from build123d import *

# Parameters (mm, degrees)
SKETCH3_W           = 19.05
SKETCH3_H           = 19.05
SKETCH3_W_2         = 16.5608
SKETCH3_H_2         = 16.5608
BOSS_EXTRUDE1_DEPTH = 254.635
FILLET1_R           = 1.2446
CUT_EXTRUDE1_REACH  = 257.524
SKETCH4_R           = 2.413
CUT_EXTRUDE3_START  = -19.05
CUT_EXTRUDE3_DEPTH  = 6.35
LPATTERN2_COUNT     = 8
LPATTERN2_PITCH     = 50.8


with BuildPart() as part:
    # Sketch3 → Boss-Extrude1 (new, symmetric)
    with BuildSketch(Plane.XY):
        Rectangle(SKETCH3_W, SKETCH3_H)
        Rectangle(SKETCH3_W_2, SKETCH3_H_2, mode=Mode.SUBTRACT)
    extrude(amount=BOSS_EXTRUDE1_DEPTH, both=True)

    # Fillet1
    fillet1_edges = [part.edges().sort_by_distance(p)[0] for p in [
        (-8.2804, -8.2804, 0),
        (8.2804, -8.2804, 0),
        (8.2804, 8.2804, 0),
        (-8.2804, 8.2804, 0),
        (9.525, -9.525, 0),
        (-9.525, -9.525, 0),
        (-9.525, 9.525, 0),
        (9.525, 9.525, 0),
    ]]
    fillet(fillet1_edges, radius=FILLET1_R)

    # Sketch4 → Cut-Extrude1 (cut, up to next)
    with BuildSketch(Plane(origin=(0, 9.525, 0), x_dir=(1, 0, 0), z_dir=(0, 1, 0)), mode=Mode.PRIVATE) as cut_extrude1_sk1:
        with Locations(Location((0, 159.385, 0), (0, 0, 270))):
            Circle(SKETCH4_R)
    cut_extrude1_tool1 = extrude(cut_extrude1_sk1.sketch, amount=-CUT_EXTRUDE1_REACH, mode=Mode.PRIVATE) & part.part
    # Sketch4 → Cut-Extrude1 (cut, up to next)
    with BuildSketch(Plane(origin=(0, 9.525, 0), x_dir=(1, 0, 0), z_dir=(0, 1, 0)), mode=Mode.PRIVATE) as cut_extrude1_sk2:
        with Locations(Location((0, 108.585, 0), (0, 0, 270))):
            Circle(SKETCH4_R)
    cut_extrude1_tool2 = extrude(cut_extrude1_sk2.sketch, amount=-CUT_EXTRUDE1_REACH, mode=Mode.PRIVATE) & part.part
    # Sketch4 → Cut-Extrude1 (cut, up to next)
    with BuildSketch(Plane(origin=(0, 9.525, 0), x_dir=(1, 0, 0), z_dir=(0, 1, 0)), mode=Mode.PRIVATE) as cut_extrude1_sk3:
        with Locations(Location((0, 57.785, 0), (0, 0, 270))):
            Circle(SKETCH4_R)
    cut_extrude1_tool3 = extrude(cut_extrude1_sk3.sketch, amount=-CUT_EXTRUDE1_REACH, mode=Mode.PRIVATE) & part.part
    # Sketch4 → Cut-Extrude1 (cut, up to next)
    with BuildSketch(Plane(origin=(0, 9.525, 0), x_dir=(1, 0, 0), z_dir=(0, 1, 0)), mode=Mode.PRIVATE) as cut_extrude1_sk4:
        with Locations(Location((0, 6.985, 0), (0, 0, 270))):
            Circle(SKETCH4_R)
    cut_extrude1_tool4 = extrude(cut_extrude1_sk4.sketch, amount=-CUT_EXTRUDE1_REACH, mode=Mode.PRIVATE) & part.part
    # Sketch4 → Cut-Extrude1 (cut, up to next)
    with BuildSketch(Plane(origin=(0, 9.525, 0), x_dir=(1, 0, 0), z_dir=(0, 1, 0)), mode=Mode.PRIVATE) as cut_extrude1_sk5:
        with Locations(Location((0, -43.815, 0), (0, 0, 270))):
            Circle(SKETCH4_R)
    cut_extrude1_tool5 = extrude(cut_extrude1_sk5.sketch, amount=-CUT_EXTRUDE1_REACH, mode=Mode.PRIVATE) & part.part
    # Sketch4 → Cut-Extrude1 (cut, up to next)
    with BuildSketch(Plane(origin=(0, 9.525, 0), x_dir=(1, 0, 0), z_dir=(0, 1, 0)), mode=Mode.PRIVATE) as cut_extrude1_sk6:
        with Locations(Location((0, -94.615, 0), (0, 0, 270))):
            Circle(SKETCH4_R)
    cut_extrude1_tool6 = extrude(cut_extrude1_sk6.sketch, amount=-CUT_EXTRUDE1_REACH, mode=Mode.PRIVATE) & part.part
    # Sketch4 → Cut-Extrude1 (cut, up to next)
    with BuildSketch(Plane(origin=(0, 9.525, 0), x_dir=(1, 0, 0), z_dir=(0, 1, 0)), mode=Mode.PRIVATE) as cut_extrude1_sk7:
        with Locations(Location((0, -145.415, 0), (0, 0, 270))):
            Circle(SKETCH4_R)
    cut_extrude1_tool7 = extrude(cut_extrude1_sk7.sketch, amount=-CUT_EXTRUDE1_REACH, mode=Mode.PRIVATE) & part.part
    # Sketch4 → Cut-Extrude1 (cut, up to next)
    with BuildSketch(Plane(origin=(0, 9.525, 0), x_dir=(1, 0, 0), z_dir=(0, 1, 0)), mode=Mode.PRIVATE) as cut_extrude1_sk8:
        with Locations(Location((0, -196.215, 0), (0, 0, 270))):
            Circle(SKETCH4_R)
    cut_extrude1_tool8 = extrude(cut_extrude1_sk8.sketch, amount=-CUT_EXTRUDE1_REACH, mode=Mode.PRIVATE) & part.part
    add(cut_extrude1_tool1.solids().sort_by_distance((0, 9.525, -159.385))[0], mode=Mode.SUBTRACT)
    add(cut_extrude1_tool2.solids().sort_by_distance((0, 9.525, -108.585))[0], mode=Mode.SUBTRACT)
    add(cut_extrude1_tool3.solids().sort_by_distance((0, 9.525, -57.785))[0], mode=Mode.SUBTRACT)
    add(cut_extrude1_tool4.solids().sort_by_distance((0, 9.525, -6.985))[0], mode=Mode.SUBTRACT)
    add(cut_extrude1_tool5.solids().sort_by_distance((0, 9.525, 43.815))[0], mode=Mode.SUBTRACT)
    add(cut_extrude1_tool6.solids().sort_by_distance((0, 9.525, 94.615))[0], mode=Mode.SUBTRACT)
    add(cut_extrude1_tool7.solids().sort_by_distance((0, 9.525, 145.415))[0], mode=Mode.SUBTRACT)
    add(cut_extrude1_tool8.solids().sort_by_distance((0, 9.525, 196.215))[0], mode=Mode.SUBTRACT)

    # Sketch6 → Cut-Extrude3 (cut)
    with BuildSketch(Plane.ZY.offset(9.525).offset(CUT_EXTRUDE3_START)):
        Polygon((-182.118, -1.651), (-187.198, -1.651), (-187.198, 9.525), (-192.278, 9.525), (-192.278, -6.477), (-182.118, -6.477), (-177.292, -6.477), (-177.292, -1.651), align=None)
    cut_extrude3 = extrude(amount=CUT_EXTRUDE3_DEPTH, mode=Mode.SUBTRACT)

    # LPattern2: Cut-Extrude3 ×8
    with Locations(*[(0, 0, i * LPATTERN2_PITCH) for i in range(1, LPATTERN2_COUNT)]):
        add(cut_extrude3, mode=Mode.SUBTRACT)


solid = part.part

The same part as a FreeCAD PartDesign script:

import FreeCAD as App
import Part
import Sketcher
Q = App.Units.Quantity


def edges_at(feature, points):
    """Names of the edges that pass closest to the given points."""
    edges = feature.Shape.Edges
    near = lambda p: min(range(len(edges)), key=lambda i: edges[i].distToShape(Part.Vertex(*p))[0])
    return sorted({f"Edge{near(p) + 1}" for p in points})


def add_polygon(sketch, points):
    """Adds a closed chain of lines whose ends are joined by coincident constraints."""
    first, n = sketch.GeometryCount, len(points)
    for a, b in zip(points, points[1:] + points[:1]):
        sketch.addGeometry(Part.LineSegment(App.Vector(*a, 0), App.Vector(*b, 0)), False)
    for i in range(n):
        sketch.addConstraint(Sketcher.Constraint("Coincident", first + i, 2, first + (i + 1) % n, 1))

doc = App.newDocument("Part")
body = doc.addObject("PartDesign::Body", "Body")

# Sketch on XY plane
sketch1 = body.newObject("Sketcher::SketchObject", "Sketch")
sketch1.AttachmentSupport = (doc.getObject("XY_Plane"), [""])
sketch1.MapMode = "FlatFace"
add_polygon(sketch1, [(-9.525, 9.525), (-9.525, -9.525), (9.525, -9.525), (9.525, 9.525)])  # lines 0-3
add_polygon(sketch1, [(8.2804, -8.2804), (-8.2804, -8.2804), (-8.2804, 8.2804), (8.2804, 8.2804)])  # lines 4-7
sketch1.addConstraint(Sketcher.Constraint("Vertical", 0))
sketch1.addConstraint(Sketcher.Constraint("Horizontal", 1))
sketch1.addConstraint(Sketcher.Constraint("Vertical", 2))
sketch1.addConstraint(Sketcher.Constraint("Horizontal", 3))
sketch1.addConstraint(Sketcher.Constraint("Horizontal", 4))
sketch1.addConstraint(Sketcher.Constraint("Vertical", 5))
sketch1.addConstraint(Sketcher.Constraint("Horizontal", 6))
sketch1.addConstraint(Sketcher.Constraint("Vertical", 7))
sketch1.addConstraint(Sketcher.Constraint("Symmetric", 0, 2, 2, 2, -1, 1))
sketch1.addConstraint(Sketcher.Constraint("Symmetric", 4, 2, 6, 2, -1, 1))
sketch1.addConstraint(Sketcher.Constraint("Equal", 3, 0))
sketch1.addConstraint(Sketcher.Constraint("Equal", 6, 5))
sketch1.addConstraint(Sketcher.Constraint("DistanceX", 1, 1, 1, 2, Q("0.75 in")))
sketch1.addConstraint(Sketcher.Constraint("DistanceX", 4, 2, 4, 1, Q("0.652 in")))
pad1 = body.newObject("PartDesign::Pad", "Pad")
pad1.Profile = sketch1
pad1.Length = Q("20.05 in")
pad1.Midplane = True
doc.recompute()

fillet = body.newObject("PartDesign::Fillet", "Fillet")
fillet.Base = (pad1, edges_at(pad1, [
    (-8.28, -8.28, 0),
    (8.28, -8.28, 0),
    (8.28, 8.28, 0),
    (-8.28, 8.28, 0),
    (9.525, -9.525, 0),
    (-9.525, -9.525, 0),
    (-9.525, 9.525, 0),
    (9.525, 9.525, 0),
]))
fillet.Radius = Q("0.049 in")

# Sketch on XZ plane
sketch2 = body.newObject("Sketcher::SketchObject", "Sketch001")
sketch2.AttachmentSupport = (doc.getObject("XZ_Plane"), [""])
sketch2.MapMode = "FlatFace"
sketch2.AttachmentOffset = App.Placement(App.Vector(0, 0, -0.375 * 25.4), App.Rotation())
sketch2.addGeometry(Part.Circle(App.Vector(0, -159.385, 0), App.Vector(0, 0, 1), 2.413), False)
sketch2.addConstraint(Sketcher.Constraint("PointOnObject", 0, 3, -2))
sketch2.addConstraint(Sketcher.Constraint("Diameter", 0, Q("0.19 in")))
sketch2.addConstraint(Sketcher.Constraint("DistanceY", 0, 3, -1, 1, Q("6.275 in")))
pocket1 = body.newObject("PartDesign::Pocket", "Pocket")
pocket1.Profile = sketch2
pocket1.Type = "UpToFirst"
pocket1.Reversed = True

# Sketch on XZ plane
sketch3 = body.newObject("Sketcher::SketchObject", "Sketch002")
sketch3.AttachmentSupport = (doc.getObject("XZ_Plane"), [""])
sketch3.MapMode = "FlatFace"
sketch3.AttachmentOffset = App.Placement(App.Vector(0, 0, -0.375 * 25.4), App.Rotation())
sketch3.addGeometry(Part.Circle(App.Vector(0, -108.585, 0), App.Vector(0, 0, 1), 2.413), False)
sketch3.addConstraint(Sketcher.Constraint("PointOnObject", 0, 3, -2))
sketch3.addConstraint(Sketcher.Constraint("Diameter", 0, Q("0.19 in")))
sketch3.addConstraint(Sketcher.Constraint("DistanceY", 0, 3, -1, 1, Q("4.275 in")))
pocket2 = body.newObject("PartDesign::Pocket", "Pocket001")
pocket2.Profile = sketch3
pocket2.Type = "UpToFirst"
pocket2.Reversed = True

# Sketch on XZ plane
sketch4 = body.newObject("Sketcher::SketchObject", "Sketch003")
sketch4.AttachmentSupport = (doc.getObject("XZ_Plane"), [""])
sketch4.MapMode = "FlatFace"
sketch4.AttachmentOffset = App.Placement(App.Vector(0, 0, -0.375 * 25.4), App.Rotation())
sketch4.addGeometry(Part.Circle(App.Vector(0, -57.785, 0), App.Vector(0, 0, 1), 2.413), False)
sketch4.addConstraint(Sketcher.Constraint("PointOnObject", 0, 3, -2))
sketch4.addConstraint(Sketcher.Constraint("Diameter", 0, Q("0.19 in")))
sketch4.addConstraint(Sketcher.Constraint("DistanceY", 0, 3, -1, 1, Q("2.275 in")))
pocket3 = body.newObject("PartDesign::Pocket", "Pocket002")
pocket3.Profile = sketch4
pocket3.Type = "UpToFirst"
pocket3.Reversed = True

# Sketch on XZ plane
sketch5 = body.newObject("Sketcher::SketchObject", "Sketch004")
sketch5.AttachmentSupport = (doc.getObject("XZ_Plane"), [""])
sketch5.MapMode = "FlatFace"
sketch5.AttachmentOffset = App.Placement(App.Vector(0, 0, -0.375 * 25.4), App.Rotation())
sketch5.addGeometry(Part.Circle(App.Vector(0, -6.985, 0), App.Vector(0, 0, 1), 2.413), False)
sketch5.addConstraint(Sketcher.Constraint("PointOnObject", 0, 3, -2))
sketch5.addConstraint(Sketcher.Constraint("Diameter", 0, Q("0.19 in")))
sketch5.addConstraint(Sketcher.Constraint("DistanceY", 0, 3, -1, 1, Q("0.275 in")))
pocket4 = body.newObject("PartDesign::Pocket", "Pocket003")
pocket4.Profile = sketch5
pocket4.Type = "UpToFirst"
pocket4.Reversed = True

# Sketch on XZ plane
sketch6 = body.newObject("Sketcher::SketchObject", "Sketch005")
sketch6.AttachmentSupport = (doc.getObject("XZ_Plane"), [""])
sketch6.MapMode = "FlatFace"
sketch6.AttachmentOffset = App.Placement(App.Vector(0, 0, -0.375 * 25.4), App.Rotation())
sketch6.addGeometry(Part.Circle(App.Vector(0, 43.815, 0), App.Vector(0, 0, 1), 2.413), False)
sketch6.addConstraint(Sketcher.Constraint("PointOnObject", 0, 3, -2))
sketch6.addConstraint(Sketcher.Constraint("Diameter", 0, Q("0.19 in")))
sketch6.addConstraint(Sketcher.Constraint("DistanceY", -1, 1, 0, 3, Q("1.725 in")))
pocket5 = body.newObject("PartDesign::Pocket", "Pocket004")
pocket5.Profile = sketch6
pocket5.Type = "UpToFirst"
pocket5.Reversed = True

# Sketch on XZ plane
sketch7 = body.newObject("Sketcher::SketchObject", "Sketch006")
sketch7.AttachmentSupport = (doc.getObject("XZ_Plane"), [""])
sketch7.MapMode = "FlatFace"
sketch7.AttachmentOffset = App.Placement(App.Vector(0, 0, -0.375 * 25.4), App.Rotation())
sketch7.addGeometry(Part.Circle(App.Vector(0, 94.615, 0), App.Vector(0, 0, 1), 2.413), False)
sketch7.addConstraint(Sketcher.Constraint("PointOnObject", 0, 3, -2))
sketch7.addConstraint(Sketcher.Constraint("Diameter", 0, Q("0.19 in")))
sketch7.addConstraint(Sketcher.Constraint("DistanceY", -1, 1, 0, 3, Q("3.725 in")))
pocket6 = body.newObject("PartDesign::Pocket", "Pocket005")
pocket6.Profile = sketch7
pocket6.Type = "UpToFirst"
pocket6.Reversed = True

# Sketch on XZ plane
sketch8 = body.newObject("Sketcher::SketchObject", "Sketch007")
sketch8.AttachmentSupport = (doc.getObject("XZ_Plane"), [""])
sketch8.MapMode = "FlatFace"
sketch8.AttachmentOffset = App.Placement(App.Vector(0, 0, -0.375 * 25.4), App.Rotation())
sketch8.addGeometry(Part.Circle(App.Vector(0, 145.415, 0), App.Vector(0, 0, 1), 2.413), False)
sketch8.addConstraint(Sketcher.Constraint("PointOnObject", 0, 3, -2))
sketch8.addConstraint(Sketcher.Constraint("Diameter", 0, Q("0.19 in")))
sketch8.addConstraint(Sketcher.Constraint("DistanceY", -1, 1, 0, 3, Q("5.725 in")))
pocket7 = body.newObject("PartDesign::Pocket", "Pocket006")
pocket7.Profile = sketch8
pocket7.Type = "UpToFirst"
pocket7.Reversed = True

# Sketch on XZ plane
sketch9 = body.newObject("Sketcher::SketchObject", "Sketch008")
sketch9.AttachmentSupport = (doc.getObject("XZ_Plane"), [""])
sketch9.MapMode = "FlatFace"
sketch9.AttachmentOffset = App.Placement(App.Vector(0, 0, -0.375 * 25.4), App.Rotation())
sketch9.addGeometry(Part.Circle(App.Vector(0, 196.215, 0), App.Vector(0, 0, 1), 2.413), False)
sketch9.addConstraint(Sketcher.Constraint("PointOnObject", 0, 3, -2))
sketch9.addConstraint(Sketcher.Constraint("Diameter", 0, Q("0.19 in")))
sketch9.addConstraint(Sketcher.Constraint("DistanceY", -1, 1, 0, 3, Q("7.725 in")))
pocket8 = body.newObject("PartDesign::Pocket", "Pocket007")
pocket8.Profile = sketch9
pocket8.Type = "UpToFirst"
pocket8.Reversed = True

# Sketch on YZ plane
sketch10 = body.newObject("Sketcher::SketchObject", "Sketch009")
sketch10.AttachmentSupport = (doc.getObject("YZ_Plane"), [""])
sketch10.MapMode = "FlatFace"
sketch10.AttachmentOffset = App.Placement(App.Vector(0, 0, 0.375 * 25.4), App.Rotation())
add_polygon(sketch10, [(-1.651, -187.198), (9.525, -187.198), (9.525, -192.278), (-6.477, -192.278), (-6.477, -177.292), (-1.651, -177.292)])  # lines 0-5
sketch10.addConstraint(Sketcher.Constraint("Horizontal", 0))
sketch10.addConstraint(Sketcher.Constraint("Vertical", 1))
sketch10.addConstraint(Sketcher.Constraint("Horizontal", 2))
sketch10.addConstraint(Sketcher.Constraint("Vertical", 3))
sketch10.addConstraint(Sketcher.Constraint("Horizontal", 4))
sketch10.addConstraint(Sketcher.Constraint("Vertical", 5))
sketch10.addConstraint(Sketcher.Constraint("DistanceY", 1, 2, 1, 1, Q("0.2 in")))
sketch10.addConstraint(Sketcher.Constraint("DistanceX", 0, 1, 0, 2, Q("0.44 in")))
sketch10.addConstraint(Sketcher.Constraint("DistanceX", 2, 2, 2, 1, Q("0.63 in")))
sketch10.addConstraint(Sketcher.Constraint("DistanceY", 3, 1, 3, 2, Q("0.59 in")))
sketch10.addConstraint(Sketcher.Constraint("DistanceY", 0, 2, -1, 1, Q("7.37 in")))
sketch10.addConstraint(Sketcher.Constraint("DistanceX", -1, 1, 0, 2, Q("0.375 in")))
pocket9 = body.newObject("PartDesign::Pocket", "Pocket008")
pocket9.Profile = sketch10
pocket9.Length = Q("0.25 in")
doc.recompute()

linearpattern = body.newObject("PartDesign::LinearPattern", "LinearPattern")
linearpattern.Originals = [pocket9]
linearpattern.Direction = (doc.getObject("Z_Axis"), [""])
linearpattern.Mode = "offset"
linearpattern.Offset = Q("2 in")
linearpattern.Occurrences = 8
body.Tip = linearpattern

doc.recompute()
